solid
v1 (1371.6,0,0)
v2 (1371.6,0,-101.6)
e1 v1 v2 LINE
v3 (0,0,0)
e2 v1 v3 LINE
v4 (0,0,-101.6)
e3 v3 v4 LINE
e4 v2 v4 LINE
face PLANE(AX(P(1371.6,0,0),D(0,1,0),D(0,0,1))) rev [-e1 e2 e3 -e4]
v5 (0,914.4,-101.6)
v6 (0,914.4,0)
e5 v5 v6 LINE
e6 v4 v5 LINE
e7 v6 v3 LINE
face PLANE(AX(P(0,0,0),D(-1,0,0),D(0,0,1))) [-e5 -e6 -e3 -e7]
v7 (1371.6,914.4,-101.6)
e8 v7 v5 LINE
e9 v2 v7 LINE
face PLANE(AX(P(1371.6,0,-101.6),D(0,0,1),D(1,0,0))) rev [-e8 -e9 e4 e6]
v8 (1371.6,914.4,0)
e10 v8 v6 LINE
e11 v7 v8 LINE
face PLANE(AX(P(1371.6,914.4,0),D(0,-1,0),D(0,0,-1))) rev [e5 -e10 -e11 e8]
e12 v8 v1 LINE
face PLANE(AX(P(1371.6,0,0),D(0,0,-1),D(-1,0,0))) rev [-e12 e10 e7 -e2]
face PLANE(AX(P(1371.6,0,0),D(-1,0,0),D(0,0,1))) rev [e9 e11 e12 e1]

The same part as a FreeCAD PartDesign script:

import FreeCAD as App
import Part
import Sketcher
from FreeCAD import Vector
Q = App.Units.Quantity

doc = App.newDocument("Part")
body = doc.addObject("PartDesign::Body", "Body")

# Sketch on YZ plane
sketch1 = body.newObject("Sketcher::SketchObject", "Sketch")
sketch1.AttachmentSupport = (doc.getObject("YZ_Plane"), [""])
sketch1.MapMode = "FlatFace"
sketch1.addGeometry(Part.LineSegment(Vector(914, 0, 0), Vector(0, 0, 0)), False)
sketch1.addGeometry(Part.LineSegment(Vector(0, 0, 0), Vector(0, -102, 0)), False)
sketch1.addGeometry(Part.LineSegment(Vector(0, -102, 0), Vector(914, -102, 0)), False)
sketch1.addGeometry(Part.LineSegment(Vector(914, -102, 0), Vector(914, 0, 0)), False)
sketch1.addConstraint(Sketcher.Constraint("Coincident", 0, 2, 1, 1))
sketch1.addConstraint(Sketcher.Constraint("Coincident", 1, 2, 2, 1))
sketch1.addConstraint(Sketcher.Constraint("Coincident", 2, 2, 3, 1))
sketch1.addConstraint(Sketcher.Constraint("Coincident", 3, 2, 0, 1))
sketch1.addConstraint(Sketcher.Constraint("Horizontal", 0))
sketch1.addConstraint(Sketcher.Constraint("Vertical", 1))
sketch1.addConstraint(Sketcher.Constraint("Horizontal", 2))
sketch1.addConstraint(Sketcher.Constraint("Vertical", 3))
sketch1.addConstraint(Sketcher.Constraint("Coincident", 0, 2, -1, 1))
sketch1.addConstraint(Sketcher.Constraint("DistanceX", 0, 2, 0, 1, Q("36 in")))
sketch1.addConstraint(Sketcher.Constraint("DistanceY", 1, 2, 1, 1, Q("4 in")))
pad1 = body.newObject("PartDesign::Pad", "Pad")
pad1.Profile = sketch1
pad1.Length = Q("54 in")

doc.recompute()
